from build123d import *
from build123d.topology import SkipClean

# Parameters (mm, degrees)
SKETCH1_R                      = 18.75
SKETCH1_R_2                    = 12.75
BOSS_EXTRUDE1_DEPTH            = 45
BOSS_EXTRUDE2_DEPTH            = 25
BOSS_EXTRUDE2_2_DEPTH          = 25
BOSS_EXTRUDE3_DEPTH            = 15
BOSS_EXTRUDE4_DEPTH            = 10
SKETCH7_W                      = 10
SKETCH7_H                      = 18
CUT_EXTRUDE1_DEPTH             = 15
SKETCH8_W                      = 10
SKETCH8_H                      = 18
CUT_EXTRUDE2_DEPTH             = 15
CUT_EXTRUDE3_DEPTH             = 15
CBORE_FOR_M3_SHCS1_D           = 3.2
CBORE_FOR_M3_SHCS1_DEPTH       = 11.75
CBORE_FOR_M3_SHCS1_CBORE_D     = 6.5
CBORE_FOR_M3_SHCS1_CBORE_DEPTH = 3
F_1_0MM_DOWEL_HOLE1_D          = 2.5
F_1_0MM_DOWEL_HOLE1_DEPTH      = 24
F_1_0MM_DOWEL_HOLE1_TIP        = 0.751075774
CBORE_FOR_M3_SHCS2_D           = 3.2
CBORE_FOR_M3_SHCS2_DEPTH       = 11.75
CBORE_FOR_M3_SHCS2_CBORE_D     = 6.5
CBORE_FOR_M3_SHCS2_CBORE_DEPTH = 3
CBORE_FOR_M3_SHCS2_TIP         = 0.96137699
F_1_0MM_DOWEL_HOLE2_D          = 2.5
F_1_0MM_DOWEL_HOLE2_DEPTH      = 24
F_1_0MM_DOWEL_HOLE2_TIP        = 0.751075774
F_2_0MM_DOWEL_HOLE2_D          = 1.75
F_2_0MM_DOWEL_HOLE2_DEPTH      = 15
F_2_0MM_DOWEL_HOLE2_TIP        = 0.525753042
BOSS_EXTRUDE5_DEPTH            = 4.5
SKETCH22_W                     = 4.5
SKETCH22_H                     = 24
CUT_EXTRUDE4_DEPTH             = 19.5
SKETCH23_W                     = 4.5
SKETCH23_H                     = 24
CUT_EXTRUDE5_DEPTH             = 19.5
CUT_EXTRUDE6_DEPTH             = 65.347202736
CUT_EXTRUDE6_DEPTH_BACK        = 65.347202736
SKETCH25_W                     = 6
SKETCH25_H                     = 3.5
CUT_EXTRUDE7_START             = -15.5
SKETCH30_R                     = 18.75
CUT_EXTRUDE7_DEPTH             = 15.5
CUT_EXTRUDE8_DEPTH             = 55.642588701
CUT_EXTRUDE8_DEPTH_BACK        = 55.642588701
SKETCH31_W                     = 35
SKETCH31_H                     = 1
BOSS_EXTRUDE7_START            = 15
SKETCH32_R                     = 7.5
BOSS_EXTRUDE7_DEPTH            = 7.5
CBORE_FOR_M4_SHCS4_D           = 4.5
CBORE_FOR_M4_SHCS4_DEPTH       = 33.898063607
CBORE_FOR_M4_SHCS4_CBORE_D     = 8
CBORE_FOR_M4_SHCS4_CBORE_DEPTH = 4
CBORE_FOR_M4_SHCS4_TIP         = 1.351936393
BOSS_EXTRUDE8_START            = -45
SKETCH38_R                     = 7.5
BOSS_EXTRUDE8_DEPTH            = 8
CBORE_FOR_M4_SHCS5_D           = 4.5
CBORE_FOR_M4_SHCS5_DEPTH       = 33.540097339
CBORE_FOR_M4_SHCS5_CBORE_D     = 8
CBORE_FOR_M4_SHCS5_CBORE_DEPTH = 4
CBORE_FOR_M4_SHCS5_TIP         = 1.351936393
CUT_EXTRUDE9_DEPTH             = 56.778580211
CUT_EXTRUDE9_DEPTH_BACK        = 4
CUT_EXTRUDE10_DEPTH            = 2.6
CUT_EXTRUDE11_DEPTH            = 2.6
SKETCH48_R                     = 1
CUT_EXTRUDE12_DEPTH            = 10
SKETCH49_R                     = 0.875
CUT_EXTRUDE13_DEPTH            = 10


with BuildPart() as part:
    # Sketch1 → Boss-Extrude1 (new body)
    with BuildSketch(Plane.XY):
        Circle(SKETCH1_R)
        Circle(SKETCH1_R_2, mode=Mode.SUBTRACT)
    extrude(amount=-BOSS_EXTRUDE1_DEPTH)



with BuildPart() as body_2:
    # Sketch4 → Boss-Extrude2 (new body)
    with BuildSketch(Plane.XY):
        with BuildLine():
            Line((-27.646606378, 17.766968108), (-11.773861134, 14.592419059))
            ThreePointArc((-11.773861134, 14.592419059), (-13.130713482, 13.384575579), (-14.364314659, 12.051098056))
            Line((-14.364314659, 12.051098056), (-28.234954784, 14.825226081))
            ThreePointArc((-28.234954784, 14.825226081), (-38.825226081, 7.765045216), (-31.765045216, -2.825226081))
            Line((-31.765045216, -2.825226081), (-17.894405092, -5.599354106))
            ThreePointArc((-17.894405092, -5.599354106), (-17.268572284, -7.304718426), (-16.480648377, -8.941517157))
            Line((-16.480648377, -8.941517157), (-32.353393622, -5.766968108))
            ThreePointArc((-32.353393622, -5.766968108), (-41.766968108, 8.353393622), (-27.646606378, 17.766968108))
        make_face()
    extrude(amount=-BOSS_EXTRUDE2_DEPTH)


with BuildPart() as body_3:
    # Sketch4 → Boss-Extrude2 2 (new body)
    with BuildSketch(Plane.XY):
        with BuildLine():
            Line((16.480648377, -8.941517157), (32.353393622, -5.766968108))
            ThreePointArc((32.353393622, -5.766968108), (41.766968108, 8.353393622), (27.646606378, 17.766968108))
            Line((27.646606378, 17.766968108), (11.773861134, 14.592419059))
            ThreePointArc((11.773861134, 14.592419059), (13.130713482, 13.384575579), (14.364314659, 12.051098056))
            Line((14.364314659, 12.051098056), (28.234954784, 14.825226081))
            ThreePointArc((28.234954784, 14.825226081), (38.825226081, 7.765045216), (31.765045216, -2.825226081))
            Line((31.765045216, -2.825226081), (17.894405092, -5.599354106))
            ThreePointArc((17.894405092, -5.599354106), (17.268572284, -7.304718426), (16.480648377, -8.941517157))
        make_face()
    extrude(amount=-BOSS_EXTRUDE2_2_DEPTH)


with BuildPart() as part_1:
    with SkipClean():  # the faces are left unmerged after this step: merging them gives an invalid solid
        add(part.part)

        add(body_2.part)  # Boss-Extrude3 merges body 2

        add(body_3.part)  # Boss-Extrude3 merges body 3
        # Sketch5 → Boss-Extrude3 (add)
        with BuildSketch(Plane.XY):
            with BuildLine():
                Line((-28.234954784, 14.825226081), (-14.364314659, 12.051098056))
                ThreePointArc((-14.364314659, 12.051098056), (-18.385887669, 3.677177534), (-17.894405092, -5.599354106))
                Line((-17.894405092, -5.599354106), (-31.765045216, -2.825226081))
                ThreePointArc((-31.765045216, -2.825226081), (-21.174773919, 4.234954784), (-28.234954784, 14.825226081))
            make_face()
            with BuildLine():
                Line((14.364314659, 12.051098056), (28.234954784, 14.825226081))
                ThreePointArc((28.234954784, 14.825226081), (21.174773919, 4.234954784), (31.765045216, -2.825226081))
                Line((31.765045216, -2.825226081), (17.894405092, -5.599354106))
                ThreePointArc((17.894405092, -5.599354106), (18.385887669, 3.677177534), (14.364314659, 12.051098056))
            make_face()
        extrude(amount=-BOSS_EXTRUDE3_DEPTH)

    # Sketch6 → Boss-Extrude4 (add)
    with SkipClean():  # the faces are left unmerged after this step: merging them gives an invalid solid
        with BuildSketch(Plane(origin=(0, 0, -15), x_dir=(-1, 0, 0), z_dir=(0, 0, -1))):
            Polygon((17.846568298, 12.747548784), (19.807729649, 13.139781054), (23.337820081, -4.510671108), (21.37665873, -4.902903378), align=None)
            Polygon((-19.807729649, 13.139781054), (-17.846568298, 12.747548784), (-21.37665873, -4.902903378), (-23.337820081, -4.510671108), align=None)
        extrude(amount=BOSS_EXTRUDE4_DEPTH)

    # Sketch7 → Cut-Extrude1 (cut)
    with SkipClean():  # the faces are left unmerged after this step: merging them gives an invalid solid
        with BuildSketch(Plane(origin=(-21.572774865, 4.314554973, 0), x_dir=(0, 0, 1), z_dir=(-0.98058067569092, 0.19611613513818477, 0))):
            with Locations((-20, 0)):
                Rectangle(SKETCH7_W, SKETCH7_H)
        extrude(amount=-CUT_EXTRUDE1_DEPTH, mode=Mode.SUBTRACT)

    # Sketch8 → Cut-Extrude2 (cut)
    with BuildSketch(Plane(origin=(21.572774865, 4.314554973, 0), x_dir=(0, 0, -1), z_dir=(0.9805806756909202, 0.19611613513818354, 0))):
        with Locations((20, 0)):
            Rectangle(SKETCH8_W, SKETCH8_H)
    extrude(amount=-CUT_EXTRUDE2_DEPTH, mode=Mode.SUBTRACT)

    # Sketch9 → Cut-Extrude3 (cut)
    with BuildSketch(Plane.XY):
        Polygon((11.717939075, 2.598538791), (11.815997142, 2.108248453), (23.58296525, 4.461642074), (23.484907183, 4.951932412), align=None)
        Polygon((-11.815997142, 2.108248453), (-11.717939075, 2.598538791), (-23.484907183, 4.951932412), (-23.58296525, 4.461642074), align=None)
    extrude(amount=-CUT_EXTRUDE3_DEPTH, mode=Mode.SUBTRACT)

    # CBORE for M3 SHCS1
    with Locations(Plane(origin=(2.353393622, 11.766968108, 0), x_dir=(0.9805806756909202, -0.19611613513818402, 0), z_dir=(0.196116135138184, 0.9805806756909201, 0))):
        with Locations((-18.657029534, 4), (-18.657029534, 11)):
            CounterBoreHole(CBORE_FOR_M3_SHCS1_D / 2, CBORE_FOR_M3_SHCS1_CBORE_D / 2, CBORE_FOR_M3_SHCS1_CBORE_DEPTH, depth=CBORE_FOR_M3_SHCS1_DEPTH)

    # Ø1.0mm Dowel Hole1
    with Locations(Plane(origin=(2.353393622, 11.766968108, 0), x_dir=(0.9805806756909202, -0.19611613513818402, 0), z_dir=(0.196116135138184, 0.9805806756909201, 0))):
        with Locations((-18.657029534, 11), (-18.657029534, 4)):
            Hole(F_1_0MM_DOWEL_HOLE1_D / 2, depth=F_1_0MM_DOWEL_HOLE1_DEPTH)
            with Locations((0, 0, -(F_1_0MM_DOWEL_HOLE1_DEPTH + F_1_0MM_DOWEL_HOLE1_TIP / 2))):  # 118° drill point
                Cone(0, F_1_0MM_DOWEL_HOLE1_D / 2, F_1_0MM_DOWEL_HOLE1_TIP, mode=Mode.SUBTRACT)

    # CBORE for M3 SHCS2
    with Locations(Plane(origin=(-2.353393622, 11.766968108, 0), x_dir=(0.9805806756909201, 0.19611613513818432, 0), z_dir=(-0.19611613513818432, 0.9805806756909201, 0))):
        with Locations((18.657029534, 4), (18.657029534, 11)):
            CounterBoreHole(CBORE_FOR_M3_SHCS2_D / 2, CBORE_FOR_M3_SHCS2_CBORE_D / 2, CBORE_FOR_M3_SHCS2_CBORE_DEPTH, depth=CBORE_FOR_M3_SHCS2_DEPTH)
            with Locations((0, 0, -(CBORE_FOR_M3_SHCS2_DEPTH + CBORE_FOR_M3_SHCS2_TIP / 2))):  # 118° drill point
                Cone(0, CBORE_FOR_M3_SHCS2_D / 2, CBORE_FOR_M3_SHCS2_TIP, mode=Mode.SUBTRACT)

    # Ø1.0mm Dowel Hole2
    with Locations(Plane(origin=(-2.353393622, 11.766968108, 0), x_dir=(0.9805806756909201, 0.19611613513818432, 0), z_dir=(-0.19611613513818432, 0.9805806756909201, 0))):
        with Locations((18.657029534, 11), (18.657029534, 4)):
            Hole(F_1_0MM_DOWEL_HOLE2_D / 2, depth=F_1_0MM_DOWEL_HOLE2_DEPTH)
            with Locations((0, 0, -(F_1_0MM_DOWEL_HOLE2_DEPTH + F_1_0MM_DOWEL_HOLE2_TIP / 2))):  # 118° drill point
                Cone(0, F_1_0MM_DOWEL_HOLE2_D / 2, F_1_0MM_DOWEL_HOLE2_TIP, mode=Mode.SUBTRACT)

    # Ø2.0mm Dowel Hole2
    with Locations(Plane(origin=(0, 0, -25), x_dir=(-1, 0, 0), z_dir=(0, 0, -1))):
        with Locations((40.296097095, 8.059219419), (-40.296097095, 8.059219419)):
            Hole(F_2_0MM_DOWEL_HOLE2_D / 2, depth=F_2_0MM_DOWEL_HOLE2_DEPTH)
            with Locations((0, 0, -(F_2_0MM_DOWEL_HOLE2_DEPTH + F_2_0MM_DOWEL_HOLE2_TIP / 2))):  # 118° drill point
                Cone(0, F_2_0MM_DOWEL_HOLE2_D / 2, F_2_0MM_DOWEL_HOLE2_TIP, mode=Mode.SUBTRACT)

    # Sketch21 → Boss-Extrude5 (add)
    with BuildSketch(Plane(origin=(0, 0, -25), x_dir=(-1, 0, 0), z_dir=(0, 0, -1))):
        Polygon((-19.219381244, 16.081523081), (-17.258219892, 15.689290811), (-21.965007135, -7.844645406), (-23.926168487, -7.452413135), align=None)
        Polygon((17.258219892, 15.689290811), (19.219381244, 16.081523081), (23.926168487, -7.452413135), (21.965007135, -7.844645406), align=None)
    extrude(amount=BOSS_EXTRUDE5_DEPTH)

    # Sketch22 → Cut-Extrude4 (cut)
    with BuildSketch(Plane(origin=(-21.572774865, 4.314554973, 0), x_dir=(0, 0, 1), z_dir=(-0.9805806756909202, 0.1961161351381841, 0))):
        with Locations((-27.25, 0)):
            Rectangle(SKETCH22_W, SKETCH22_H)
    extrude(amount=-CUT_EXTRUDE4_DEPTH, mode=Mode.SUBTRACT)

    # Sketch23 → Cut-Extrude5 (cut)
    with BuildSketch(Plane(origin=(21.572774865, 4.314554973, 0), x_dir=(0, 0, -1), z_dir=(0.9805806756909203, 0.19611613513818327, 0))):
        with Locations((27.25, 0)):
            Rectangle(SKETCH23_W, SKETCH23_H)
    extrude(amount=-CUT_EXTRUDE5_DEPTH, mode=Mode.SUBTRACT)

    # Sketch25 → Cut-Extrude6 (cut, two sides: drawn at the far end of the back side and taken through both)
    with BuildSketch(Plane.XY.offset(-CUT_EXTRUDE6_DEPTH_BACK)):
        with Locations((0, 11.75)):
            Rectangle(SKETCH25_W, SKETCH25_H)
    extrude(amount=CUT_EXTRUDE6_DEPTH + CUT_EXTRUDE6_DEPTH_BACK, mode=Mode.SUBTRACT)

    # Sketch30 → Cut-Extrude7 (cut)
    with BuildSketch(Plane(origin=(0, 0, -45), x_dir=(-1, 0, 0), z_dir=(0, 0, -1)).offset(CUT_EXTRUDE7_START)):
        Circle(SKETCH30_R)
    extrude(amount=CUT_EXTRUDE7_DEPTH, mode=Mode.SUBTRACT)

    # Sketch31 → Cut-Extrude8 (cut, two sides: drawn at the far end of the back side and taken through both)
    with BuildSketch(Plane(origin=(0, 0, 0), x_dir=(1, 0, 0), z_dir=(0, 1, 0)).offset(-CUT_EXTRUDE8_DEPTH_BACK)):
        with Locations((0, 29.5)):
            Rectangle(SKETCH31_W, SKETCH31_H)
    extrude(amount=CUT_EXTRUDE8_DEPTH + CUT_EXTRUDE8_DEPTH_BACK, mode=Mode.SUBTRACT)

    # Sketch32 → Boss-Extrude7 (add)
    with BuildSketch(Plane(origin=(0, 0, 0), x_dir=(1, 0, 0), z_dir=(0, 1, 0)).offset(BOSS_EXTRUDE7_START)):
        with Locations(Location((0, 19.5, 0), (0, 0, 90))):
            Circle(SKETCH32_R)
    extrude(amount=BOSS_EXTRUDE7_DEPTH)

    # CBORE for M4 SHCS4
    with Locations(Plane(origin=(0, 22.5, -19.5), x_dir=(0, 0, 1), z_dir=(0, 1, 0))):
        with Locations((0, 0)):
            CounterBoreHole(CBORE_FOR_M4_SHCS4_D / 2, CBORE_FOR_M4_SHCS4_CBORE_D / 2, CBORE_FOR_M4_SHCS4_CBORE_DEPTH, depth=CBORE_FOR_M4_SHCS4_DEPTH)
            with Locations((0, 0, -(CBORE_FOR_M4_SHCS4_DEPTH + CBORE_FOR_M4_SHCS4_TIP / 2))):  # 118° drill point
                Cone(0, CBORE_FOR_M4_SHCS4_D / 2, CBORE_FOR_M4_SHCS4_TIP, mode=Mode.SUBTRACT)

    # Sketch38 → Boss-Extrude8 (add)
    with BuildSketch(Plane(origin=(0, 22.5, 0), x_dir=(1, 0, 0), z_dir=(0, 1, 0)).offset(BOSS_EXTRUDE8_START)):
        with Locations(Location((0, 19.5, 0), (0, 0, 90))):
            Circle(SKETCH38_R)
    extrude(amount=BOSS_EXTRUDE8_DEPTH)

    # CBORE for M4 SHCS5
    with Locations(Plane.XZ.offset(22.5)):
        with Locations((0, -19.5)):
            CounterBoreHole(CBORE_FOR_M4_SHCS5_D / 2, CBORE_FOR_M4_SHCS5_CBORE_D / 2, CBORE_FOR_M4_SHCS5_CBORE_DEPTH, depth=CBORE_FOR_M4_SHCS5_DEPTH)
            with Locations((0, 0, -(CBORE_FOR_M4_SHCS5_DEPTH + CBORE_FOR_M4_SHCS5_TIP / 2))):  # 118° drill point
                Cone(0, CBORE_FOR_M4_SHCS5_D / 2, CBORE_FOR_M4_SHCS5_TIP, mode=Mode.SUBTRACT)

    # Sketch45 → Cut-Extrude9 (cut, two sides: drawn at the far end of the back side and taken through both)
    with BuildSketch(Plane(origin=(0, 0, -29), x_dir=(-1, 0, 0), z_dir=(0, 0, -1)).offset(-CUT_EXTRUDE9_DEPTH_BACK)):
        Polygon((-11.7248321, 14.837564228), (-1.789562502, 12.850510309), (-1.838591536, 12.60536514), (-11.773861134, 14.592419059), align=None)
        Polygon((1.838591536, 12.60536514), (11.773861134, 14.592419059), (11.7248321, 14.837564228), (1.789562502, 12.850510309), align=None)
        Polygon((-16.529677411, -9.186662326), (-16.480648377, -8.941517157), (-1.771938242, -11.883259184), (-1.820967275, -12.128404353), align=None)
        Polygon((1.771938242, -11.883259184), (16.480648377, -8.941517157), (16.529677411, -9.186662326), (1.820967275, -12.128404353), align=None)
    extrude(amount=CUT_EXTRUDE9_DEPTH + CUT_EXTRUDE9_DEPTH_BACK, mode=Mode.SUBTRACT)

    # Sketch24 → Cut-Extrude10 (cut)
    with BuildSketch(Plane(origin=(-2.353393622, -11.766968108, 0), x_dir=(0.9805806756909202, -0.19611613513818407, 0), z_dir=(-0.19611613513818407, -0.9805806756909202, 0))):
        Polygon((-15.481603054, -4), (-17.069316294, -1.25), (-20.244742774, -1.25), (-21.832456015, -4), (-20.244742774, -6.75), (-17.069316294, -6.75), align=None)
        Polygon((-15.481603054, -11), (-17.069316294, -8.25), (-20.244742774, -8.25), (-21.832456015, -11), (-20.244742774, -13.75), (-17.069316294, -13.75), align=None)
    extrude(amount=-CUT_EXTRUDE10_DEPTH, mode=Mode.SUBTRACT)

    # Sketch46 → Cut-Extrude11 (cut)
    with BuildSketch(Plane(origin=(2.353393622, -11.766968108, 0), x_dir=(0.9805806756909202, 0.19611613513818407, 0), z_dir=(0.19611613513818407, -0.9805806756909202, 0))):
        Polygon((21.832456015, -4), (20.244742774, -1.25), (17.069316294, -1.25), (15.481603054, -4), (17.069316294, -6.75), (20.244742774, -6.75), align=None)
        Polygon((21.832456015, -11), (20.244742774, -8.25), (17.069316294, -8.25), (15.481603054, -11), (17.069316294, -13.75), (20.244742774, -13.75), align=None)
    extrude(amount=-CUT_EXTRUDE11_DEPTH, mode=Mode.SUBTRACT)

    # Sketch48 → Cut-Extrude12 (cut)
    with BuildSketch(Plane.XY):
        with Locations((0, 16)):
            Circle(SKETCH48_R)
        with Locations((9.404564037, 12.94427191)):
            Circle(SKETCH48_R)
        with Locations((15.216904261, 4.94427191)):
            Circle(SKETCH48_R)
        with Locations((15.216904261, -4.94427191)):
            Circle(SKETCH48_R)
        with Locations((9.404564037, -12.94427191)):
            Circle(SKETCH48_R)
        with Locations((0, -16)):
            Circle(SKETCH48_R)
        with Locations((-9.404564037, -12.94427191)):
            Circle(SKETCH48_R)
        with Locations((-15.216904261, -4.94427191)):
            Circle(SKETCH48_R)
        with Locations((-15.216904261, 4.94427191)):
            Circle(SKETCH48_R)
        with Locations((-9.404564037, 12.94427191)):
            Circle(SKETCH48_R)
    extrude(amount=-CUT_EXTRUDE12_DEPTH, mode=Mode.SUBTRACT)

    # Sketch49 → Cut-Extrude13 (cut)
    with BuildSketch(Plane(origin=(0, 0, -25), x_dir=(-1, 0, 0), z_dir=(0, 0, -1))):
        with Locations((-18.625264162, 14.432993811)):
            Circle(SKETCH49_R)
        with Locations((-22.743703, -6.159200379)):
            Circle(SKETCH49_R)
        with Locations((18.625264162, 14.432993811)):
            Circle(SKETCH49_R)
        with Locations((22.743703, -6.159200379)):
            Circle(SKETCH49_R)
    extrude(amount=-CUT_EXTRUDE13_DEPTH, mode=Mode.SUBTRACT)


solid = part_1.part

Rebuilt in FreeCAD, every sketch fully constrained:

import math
import FreeCAD as App
import Part
import Sketcher

V = App.Vector
Q = App.Units.Quantity


def add_polygon(sketch, points):
    """Adds a closed chain of lines whose ends are joined by coincident constraints."""
    first, n = sketch.GeometryCount, len(points)
    for a, b in zip(points, points[1:] + points[:1]):
        sketch.addGeometry(Part.LineSegment(App.Vector(*a, 0), App.Vector(*b, 0)), False)
    for i in range(n):
        sketch.addConstraint(Sketcher.Constraint("Coincident", first + i, 2, first + (i + 1) % n, 1))

doc = App.newDocument("Part")
body = doc.addObject("PartDesign::Body", "Body")

# Sketch on XY plane
sketch1 = doc.addObject("Sketcher::SketchObject", "Sketch")
body.addObject(sketch1)
sketch1.AttachmentSupport = (doc.XY_Plane, [""])
sketch1.MapMode = "FlatFace"
sketch1.addGeometry([
    Part.Circle(V(0, 0, 0), V(0, 0, 1), 19),
    Part.Circle(V(0, 0, 0), V(0, 0, 1), 13),
], False)
sketch1.addConstraint([
    Sketcher.Constraint("Coincident", 0, 3, -1, 1),
    Sketcher.Constraint("Coincident", 1, 3, -1, 1),
    Sketcher.Constraint("Diameter", 0, Q("37.5 mm")),
    Sketcher.Constraint("Diameter", 1, Q("25.5 mm")),
])
pad1 = doc.addObject("PartDesign::Pad", "Pad")
body.addObject(pad1)
pad1.Profile = sketch1
pad1.Length = 45
pad1.Reversed = True
body2 = doc.addObject("PartDesign::Body", "Body001")

# Sketch on XY plane
sketch2 = doc.addObject("Sketcher::SketchObject", "Sketch001")
body2.addObject(sketch2)
sketch2.AttachmentSupport = (doc.getObject("XY_Plane001"), [""])
sketch2.MapMode = "FlatFace"
sketch2.addGeometry([
    Part.LineSegment(V(-11.8, 14.6, 0), V(-27.6, 17.8, 0)),  # 0
    Part.ArcOfCircle(Part.Circle(V(-30, 6, 0), V(0, 0, 1), 12), math.radians(79), math.radians(259)),  # 1
    Part.LineSegment(V(-32.4, -5.8, 0), V(-16.5, -8.9, 0)),  # 2
    Part.ArcOfCircle(Part.Circle(V(0, 0, 0), V(0, 0, 1), 18.7), math.radians(-162.62), math.radians(-151.52)),  # 3
    Part.LineSegment(V(-17.9, -5.6, 0), V(-31.8, -2.8, 0)),  # 4
    Part.ArcOfCircle(Part.Circle(V(-30, 6, 0), V(0, 0, 1), 9), math.radians(79), math.radians(259)),  # 5
    Part.LineSegment(V(-28.2, 14.8, 0), V(-14.4, 12.1, 0)),  # 6
    Part.ArcOfCircle(Part.Circle(V(0, 0, 0), V(0, 0, 1), 18.8), math.radians(128.9), math.radians(140)),  # 7
], False)
sketch2.addConstraint([
    Sketcher.Constraint("Tangent", 0, 2, 1, 1),
    Sketcher.Constraint("Tangent", 1, 2, 2, 1),
    Sketcher.Constraint("Coincident", 2, 2, 3, 2),
    Sketcher.Constraint("Coincident", 3, 1, 4, 1),
    Sketcher.Constraint("Tangent", 4, 2, 5, 2),
    Sketcher.Constraint("Tangent", 5, 1, 6, 1),
    Sketcher.Constraint("Coincident", 6, 2, 7, 2),
    Sketcher.Constraint("Coincident", 7, 1, 0, 1),
    Sketcher.Constraint("Coincident", 3, 3, -1, 1),
    Sketcher.Constraint("Coincident", 7, 3, -1, 1),
    Sketcher.Constraint("Coincident", 5, 3, 1, 3),
    Sketcher.Constraint("Equal", 3, 7),
    Sketcher.Constraint("Parallel", 0, 2),
    Sketcher.Constraint("Parallel", 2, 4),
    Sketcher.Constraint("Parallel", 4, 6),
    Sketcher.Constraint("Equal", 0, 2),
    Sketcher.Constraint("Radius", 1, Q("12 mm")),
    Sketcher.Constraint("Radius", 5, Q("9 mm")),
    Sketcher.Constraint("Radius", 3, Q("18.75 mm")),
    Sketcher.Constraint("DistanceX", 1, 3, -1, 1, Q("30 mm")),
    Sketcher.Constraint("DistanceY", -1, 1, 1, 3, Q("6 mm")),
])
pad2 = doc.addObject("PartDesign::Pad", "Pad001")
body2.addObject(pad2)
pad2.Profile = sketch2
pad2.Length = 25
pad2.Reversed = True
body3 = doc.addObject("PartDesign::Body", "Body002")

# Sketch on XY plane
sketch3 = doc.addObject("Sketcher::SketchObject", "Sketch002")
body3.addObject(sketch3)
sketch3.AttachmentSupport = (doc.getObject("XY_Plane002"), [""])
sketch3.MapMode = "FlatFace"
sketch3.addGeometry([
    Part.LineSegment(V(16.5, -8.9, 0), V(32.4, -5.8, 0)),  # 0
    Part.ArcOfCircle(Part.Circle(V(30, 6, 0), V(0, 0, 1), 12), math.radians(-79), math.radians(101)),  # 1
    Part.LineSegment(V(27.6, 17.8, 0), V(11.8, 14.6, 0)),  # 2
    Part.ArcOfCircle(Part.Circle(V(0, 0, 0), V(0, 0, 1), 18.8), math.radians(40), math.radians(51.1)),  # 3
    Part.LineSegment(V(14.4, 12.1, 0), V(28.2, 14.8, 0)),  # 4
    Part.ArcOfCircle(Part.Circle(V(30, 6, 0), V(0, 0, 1), 9), math.radians(-79), math.radians(101)),  # 5
    Part.LineSegment(V(31.8, -2.8, 0), V(17.9, -5.6, 0)),  # 6
    Part.ArcOfCircle(Part.Circle(V(0, 0, 0), V(0, 0, 1), 18.7), math.radians(-28.48), math.radians(-17.38)),  # 7
], False)
sketch3.addConstraint([
    Sketcher.Constraint("Tangent", 0, 2, 1, 1),
    Sketcher.Constraint("Tangent", 1, 2, 2, 1),
    Sketcher.Constraint("Coincident", 2, 2, 3, 2),
    Sketcher.Constraint("Coincident", 3, 1, 4, 1),
    Sketcher.Constraint("Tangent", 4, 2, 5, 2),
    Sketcher.Constraint("Tangent", 5, 1, 6, 1),
    Sketcher.Constraint("Coincident", 6, 2, 7, 2),
    Sketcher.Constraint("Coincident", 7, 1, 0, 1),
    Sketcher.Constraint("Coincident", 3, 3, -1, 1),
    Sketcher.Constraint("Coincident", 7, 3, -1, 1),
    Sketcher.Constraint("Coincident", 5, 3, 1, 3),
    Sketcher.Constraint("Equal", 3, 7),
    Sketcher.Constraint("Parallel", 0, 2),
    Sketcher.Constraint("Parallel", 2, 4),
    Sketcher.Constraint("Parallel", 4, 6),
    Sketcher.Constraint("Equal", 0, 2),
    Sketcher.Constraint("Radius", 1, Q("12 mm")),
    Sketcher.Constraint("Radius", 5, Q("9 mm")),
    Sketcher.Constraint("Radius", 3, Q("18.75 mm")),
    Sketcher.Constraint("DistanceX", -1, 1, 1, 3, Q("30 mm")),
    Sketcher.Constraint("DistanceY", -1, 1, 1, 3, Q("6 mm")),
])
pad3 = doc.addObject("PartDesign::Pad", "Pad002")
body3.addObject(pad3)
pad3.Profile = sketch3
pad3.Length = 25
pad3.Reversed = True
doc.recompute()

boolean = doc.addObject("PartDesign::Boolean", "Boolean")
body.addObject(boolean)
boolean.Type = "Fuse"
boolean.addObjects([body2])
doc.recompute()

boolean2 = doc.addObject("PartDesign::Boolean", "Boolean001")
body.addObject(boolean2)
boolean2.Type = "Fuse"
boolean2.addObjects([body3])

# Sketch on XY plane
sketch4 = doc.addObject("Sketcher::SketchObject", "Sketch003")
body.addObject(sketch4)
sketch4.AttachmentSupport = (doc.XY_Plane, [""])
sketch4.MapMode = "FlatFace"
sketch4.addGeometry([
    Part.LineSegment(V(-14, 12, 0), V(-28, 15, 0)),  # 0
    Part.ArcOfCircle(Part.Circle(V(-30, 6, 0), V(0, 0, 1), 9), math.radians(-101), math.radians(79)),  # 1
    Part.LineSegment(V(-32, -3, 0), V(-18, -6, 0)),  # 2
    Part.ArcOfCircle(Part.Circle(V(0, 0, 0), V(0, 0, 1), 19), math.radians(140), math.radians(197)),  # 3
    Part.LineSegment(V(28, 15, 0), V(14, 12, 0)),  # 4
    Part.ArcOfCircle(Part.Circle(V(0, 0, 0), V(0, 0, 1), 19), math.radians(-17), math.radians(40)),  # 5
    Part.LineSegment(V(18, -6, 0), V(32, -3, 0)),  # 6
    Part.ArcOfCircle(Part.Circle(V(30, 6, 0), V(0, 0, 1), 9), math.radians(101), math.radians(281)),  # 7
], False)
sketch4.addConstraint([
    Sketcher.Constraint("Tangent", 0, 2, 1, 2),
    Sketcher.Constraint("Tangent", 1, 1, 2, 1),
    Sketcher.Constraint("Coincident", 2, 2, 3, 2),
    Sketcher.Constraint("Coincident", 3, 1, 0, 1),
    Sketcher.Constraint("Coincident", 4, 2, 5, 2),
    Sketcher.Constraint("Coincident", 5, 1, 6, 1),
    Sketcher.Constraint("Tangent", 6, 2, 7, 2),
    Sketcher.Constraint("Tangent", 7, 1, 4, 1),
    Sketcher.Constraint("Coincident", 3, 3, -1, 1),
    Sketcher.Constraint("Coincident", 5, 3, -1, 1),
    Sketcher.Constraint("Equal", 3, 5),
    Sketcher.Constraint("Equal", 1, 7),
    Sketcher.Constraint("Symmetric", 1, 3, 7, 3, -2),
    Sketcher.Constraint("Parallel", 0, 2),
    Sketcher.Constraint("Parallel", 4, 6),
    Sketcher.Constraint("Horizontal", 3, 1, 4, 2),
    Sketcher.Constraint("Equal", 0, 2),
    Sketcher.Constraint("Radius", 1, Q("9 mm")),
    Sketcher.Constraint("Radius", 3, Q("18.75 mm")),
    Sketcher.Constraint("DistanceX", 1, 3, -1, 1, Q("30 mm")),
    Sketcher.Constraint("DistanceY", -1, 1, 1, 3, Q("6 mm")),
])
pad4 = doc.addObject("PartDesign::Pad", "Pad003")
body.addObject(pad4)
pad4.Profile = sketch4
pad4.Length = 15
pad4.Reversed = True

# Sketch on XY plane
sketch5 = doc.addObject("Sketcher::SketchObject", "Sketch004")
body.addObject(sketch5)
sketch5.AttachmentSupport = (doc.XY_Plane, [""])
sketch5.MapMode = "FlatFace"
sketch5.AttachmentOffset = App.Placement(V(0, 0, -15), App.Rotation())
add_polygon(sketch5, [(-19.8, 13.1), (-17.8, 12.7), (-21.4, -4.9), (-23.3, -4.5)])  # lines 0-3
add_polygon(sketch5, [(17.8, 12.7), (19.8, 13.1), (23.3, -4.5), (21.4, -4.9)])  # lines 4-7
sketch5.addConstraint([
    Sketcher.Constraint("Symmetric", 3, 2, 4, 2, -2),
    Sketcher.Constraint("Symmetric", 2, 2, 5, 2, -2),
    Sketcher.Constraint("Symmetric", 1, 2, 6, 2, -2),
    Sketcher.Constraint("Symmetric", 0, 2, 7, 2, -2),
    Sketcher.Constraint("Perpendicular", 0, 1),
    Sketcher.Constraint("Perpendicular", 1, 2),
    Sketcher.Constraint("Perpendicular", 2, 3),
    Sketcher.Constraint("Distance", 0, Q("2 mm")),
    Sketcher.Constraint("Distance", 1, Q("18 mm")),
    Sketcher.Constraint("DistanceX", 0, 2, -1, 1, Q("17.846568 mm")),
    Sketcher.Constraint("DistanceY", -1, 1, 0, 2, Q("12.747549 mm")),
    Sketcher.Constraint("DistanceX", 1, 2, -1, 1, Q("21.376659 mm")),
])
pad5 = doc.addObject("PartDesign::Pad", "Pad004")
body.addObject(pad5)
pad5.Profile = sketch5
pad5.Length = 10
pad5.Reversed = True

# Sketch on an angled plane
sketch6 = doc.addObject("Sketcher::SketchObject", "Sketch005")
body.addObject(sketch6)
sketch6.Placement = App.Placement(V(-21.572775, 4.314555, 0), App.Rotation(V(0, 0, 1), V(0.196116135, 0.980580676, 0), V(-0.980580676, 0.196116135, 0), "ZXY"))
add_polygon(sketch6, [(-25, 9), (-25, -9), (-15, -9), (-15, 9)])  # lines 0-3
sketch6.addConstraint([
    Sketcher.Constraint("Vertical", 0),
    Sketcher.Constraint("Horizontal", 1),
    Sketcher.Constraint("Vertical", 2),
    Sketcher.Constraint("Horizontal", 3),
    Sketcher.Constraint("DistanceX", 1, 1, 1, 2, Q("10 mm")),
    Sketcher.Constraint("DistanceY", 0, 2, 0, 1, Q("18 mm")),
    Sketcher.Constraint("DistanceX", 0, 2, -1, 1, Q("25 mm")),
    Sketcher.Constraint("DistanceY", 0, 2, -1, 1, Q("9 mm")),
])
pocket1 = doc.addObject("PartDesign::Pocket", "Pocket")
body.addObject(pocket1)
pocket1.Profile = sketch6
pocket1.Length = 15

# Sketch on an angled plane
sketch7 = doc.addObject("Sketcher::SketchObject", "Sketch006")
body.addObject(sketch7)
sketch7.Placement = App.Placement(V(21.572775, 4.314555, 0), App.Rotation(V(0, 0, -1), V(-0.196116135, 0.980580676, 0), V(0.980580676, 0.196116135, 0), "ZXY"))
add_polygon(sketch7, [(15, 9), (15, -9), (25, -9), (25, 9)])  # lines 0-3
sketch7.addConstraint([
    Sketcher.Constraint("Vertical", 0),
    Sketcher.Constraint("Horizontal", 1),
    Sketcher.Constraint("Vertical", 2),
    Sketcher.Constraint("Horizontal", 3),
    Sketcher.Constraint("DistanceX", 1, 1, 1, 2, Q("10 mm")),
    Sketcher.Constraint("DistanceY", 0, 2, 0, 1, Q("18 mm")),
    Sketcher.Constraint("DistanceX", -1, 1, 0, 2, Q("15 mm")),
    Sketcher.Constraint("DistanceY", 0, 2, -1, 1, Q("9 mm")),
])
pocket2 = doc.addObject("PartDesign::Pocket", "Pocket001")
body.addObject(pocket2)
pocket2.Profile = sketch7
pocket2.Length = 15

# Sketch on XY plane
sketch8 = doc.addObject("Sketcher::SketchObject", "Sketch007")
body.addObject(sketch8)
sketch8.AttachmentSupport = (doc.XY_Plane, [""])
sketch8.MapMode = "FlatFace"
add_polygon(sketch8, [(11.717939, 2.598539), (11.815997, 2.108248), (23.582965, 4.461642), (23.484907, 4.951932)])  # lines 0-3
add_polygon(sketch8, [(-11.815997, 2.108248), (-11.717939, 2.598539), (-23.484907, 4.951932), (-23.582965, 4.461642)])  # lines 4-7
sketch8.addConstraint([
    Sketcher.Constraint("Distance", 1, Q("12 mm")),
    Sketcher.Constraint("Distance", 3, Q("12 mm")),
    Sketcher.Constraint("Distance", 5, Q("12 mm")),
    Sketcher.Constraint("Distance", 7, Q("12 mm")),
    Sketcher.Constraint("Distance", 0, Q("0.5 mm")),
    Sketcher.Constraint("Distance", 2, Q("0.5 mm")),
    Sketcher.Constraint("Distance", 4, Q("0.5 mm")),
    Sketcher.Constraint("Distance", 6, Q("0.5 mm")),
    Sketcher.Constraint("DistanceY", -1, 1, 0, 2, Q("2.108248 mm")),
    Sketcher.Constraint("DistanceX", -1, 1, 3, 2, Q("11.717939 mm")),
    Sketcher.Constraint("DistanceY", -1, 1, 3, 2, Q("2.598539 mm")),
    Sketcher.Constraint("DistanceX", 4, 2, -1, 1, Q("11.717939 mm")),
    Sketcher.Constraint("DistanceY", -1, 1, 4, 2, Q("2.598539 mm")),
    Sketcher.Constraint("DistanceY", -1, 1, 7, 2, Q("2.108248 mm")),
    Sketcher.Constraint("DistanceX", 0, 2, 1, 2, Q("11.766968 mm")),
    Sketcher.Constraint("DistanceX", 5, 2, 4, 2, Q("11.766968 mm")),
])
pocket3 = doc.addObject("PartDesign::Pocket", "Pocket002")
body.addObject(pocket3)
pocket3.Profile = sketch8
pocket3.Length = 15

# Sketch on an angled plane
sketch9 = doc.addObject("Sketcher::SketchObject", "Sketch008")
body.addObject(sketch9)
sketch9.Placement = App.Placement(V(2.353394, 11.766968, 0), App.Rotation(V(0.980580676, -0.196116135, 0), V(0, 0, -1.000000001), V(0.196116135, 0.980580676, 0), "ZXY"))
sketch9.addGeometry([
    Part.Circle(V(-18.7, 4, 0), V(0, 0, 1), 1.6),
    Part.Circle(V(-18.7, 11, 0), V(0, 0, 1), 1.6),
], False)
sketch9.addConstraint([
    Sketcher.Constraint("Equal", 0, 1),
    Sketcher.Constraint("Vertical", 0, 3, 1, 3),
    Sketcher.Constraint("Diameter", 0, Q("3.2 mm")),
    Sketcher.Constraint("DistanceY", -1, 1, 0, 3, Q("4 mm")),
    Sketcher.Constraint("DistanceY", -1, 1, 1, 3, Q("11 mm")),
    Sketcher.Constraint("DistanceX", 0, 3, -1, 1, Q("18.65703 mm")),
])
doc.recompute()
hole = doc.addObject("PartDesign::Hole", "Hole")
body.addObject(hole)
hole.Profile = sketch9
hole.ThreadType = "None"
hole.Diameter = 3.2
hole.DepthType = "Dimension"
hole.Depth = 11.75
hole.DrillPoint = "Flat"
hole.HoleCutType = "Counterbore"
hole.HoleCutDiameter = 6.5
hole.HoleCutDepth = 3

# Sketch on an angled plane
sketch10 = doc.addObject("Sketcher::SketchObject", "Sketch009")
body.addObject(sketch10)
sketch10.Placement = App.Placement(V(2.353394, 11.766968, 0), App.Rotation(V(0.980580676, -0.196116135, 0), V(0, 0, -1.000000001), V(0.196116135, 0.980580676, 0), "ZXY"))
sketch10.addGeometry([
    Part.Circle(V(-18.7, 11, 0), V(0, 0, 1), 1.2),
    Part.Circle(V(-18.7, 4, 0), V(0, 0, 1), 1.2),
], False)
sketch10.addConstraint([
    Sketcher.Constraint("Equal", 0, 1),
    Sketcher.Constraint("Vertical", 0, 3, 1, 3),
    Sketcher.Constraint("Diameter", 0, Q("2.5 mm")),
    Sketcher.Constraint("DistanceY", -1, 1, 0, 3, Q("11 mm")),
    Sketcher.Constraint("DistanceY", -1, 1, 1, 3, Q("4 mm")),
    Sketcher.Constraint("DistanceX", 0, 3, -1, 1, Q("18.65703 mm")),
])
doc.recompute()
hole2 = doc.addObject("PartDesign::Hole", "Hole001")
body.addObject(hole2)
hole2.Profile = sketch10
hole2.ThreadType = "None"
hole2.Diameter = 2.5
hole2.DepthType = "Dimension"
hole2.Depth = 24
hole2.DrillPoint = "Angled"
hole2.DrillPointAngle = 118

# Sketch on an angled plane
sketch11 = doc.addObject("Sketcher::SketchObject", "Sketch010")
body.addObject(sketch11)
sketch11.Placement = App.Placement(V(-2.353394, 11.766968, 0), App.Rotation(V(0.980580676, 0.196116135, 0), V(0, 0, -1.000000001), V(-0.196116135, 0.980580676, 0), "ZXY"))
sketch11.addGeometry([
    Part.Circle(V(18.7, 4, 0), V(0, 0, 1), 1.6),
    Part.Circle(V(18.7, 11, 0), V(0, 0, 1), 1.6),
], False)
sketch11.addConstraint([
    Sketcher.Constraint("Equal", 0, 1),
    Sketcher.Constraint("Vertical", 0, 3, 1, 3),
    Sketcher.Constraint("Diameter", 0, Q("3.2 mm")),
    Sketcher.Constraint("DistanceY", -1, 1, 0, 3, Q("4 mm")),
    Sketcher.Constraint("DistanceY", -1, 1, 1, 3, Q("11 mm")),
    Sketcher.Constraint("DistanceX", -1, 1, 0, 3, Q("18.65703 mm")),
])
doc.recompute()
hole3 = doc.addObject("PartDesign::Hole", "Hole002")
body.addObject(hole3)
hole3.Profile = sketch11
hole3.ThreadType = "None"
hole3.Diameter = 3.2
hole3.DepthType = "Dimension"
hole3.Depth = 11.75
hole3.DrillPoint = "Angled"
hole3.DrillPointAngle = 118
hole3.HoleCutType = "Counterbore"
hole3.HoleCutDiameter = 6.5
hole3.HoleCutDepth = 3

# Sketch on an angled plane
sketch12 = doc.addObject("Sketcher::SketchObject", "Sketch011")
body.addObject(sketch12)
sketch12.Placement = App.Placement(V(-2.353394, 11.766968, 0), App.Rotation(V(0.980580676, 0.196116135, 0), V(0, 0, -1.000000001), V(-0.196116135, 0.980580676, 0), "ZXY"))
sketch12.addGeometry([
    Part.Circle(V(18.7, 11, 0), V(0, 0, 1), 1.2),
    Part.Circle(V(18.7, 4, 0), V(0, 0, 1), 1.2),
], False)
sketch12.addConstraint([
    Sketcher.Constraint("Equal", 0, 1),
    Sketcher.Constraint("Vertical", 0, 3, 1, 3),
    Sketcher.Constraint("Diameter", 0, Q("2.5 mm")),
    Sketcher.Constraint("DistanceY", -1, 1, 0, 3, Q("11 mm")),
    Sketcher.Constraint("DistanceY", -1, 1, 1, 3, Q("4 mm")),
    Sketcher.Constraint("DistanceX", -1, 1, 0, 3, Q("18.65703 mm")),
])
doc.recompute()
hole4 = doc.addObject("PartDesign::Hole", "Hole003")
body.addObject(hole4)
hole4.Profile = sketch12
hole4.ThreadType = "None"
hole4.Diameter = 2.5
hole4.DepthType = "Dimension"
hole4.Depth = 24
hole4.DrillPoint = "Angled"
hole4.DrillPointAngle = 118

# Sketch on XY plane
sketch13 = doc.addObject("Sketcher::SketchObject", "Sketch012")
body.addObject(sketch13)
sketch13.AttachmentSupport = (doc.XY_Plane, [""])
sketch13.MapMode = "FlatFace"
sketch13.AttachmentOffset = App.Placement(V(0, 0, -25), App.Rotation())
sketch13.addGeometry([
    Part.Circle(V(-40.3, 8.1, 0), V(0, 0, 1), 0.9),
    Part.Circle(V(40.3, 8.1, 0), V(0, 0, 1), 0.9),
], False)
sketch13.addConstraint([
    Sketcher.Constraint("Equal", 0, 1),
    Sketcher.Constraint("Symmetric", 0, 3, 1, 3, -2),
    Sketcher.Constraint("Diameter", 0, Q("1.75 mm")),
    Sketcher.Constraint("DistanceY", -1, 1, 0, 3, Q("8.059219 mm")),
    Sketcher.Constraint("DistanceX", 0, 3, -1, 1, Q("40.296097 mm")),
])
doc.recompute()
hole5 = doc.addObject("PartDesign::Hole", "Hole004")
body.addObject(hole5)
hole5.Profile = sketch13
hole5.ThreadType = "None"
hole5.Diameter = 1.75
hole5.DepthType = "Dimension"
hole5.Depth = 15
hole5.DrillPoint = "Angled"
hole5.DrillPointAngle = 118
hole5.Reversed = True

# Sketch on XY plane
sketch14 = doc.addObject("Sketcher::SketchObject", "Sketch013")
body.addObject(sketch14)
sketch14.AttachmentSupport = (doc.XY_Plane, [""])
sketch14.MapMode = "FlatFace"
sketch14.AttachmentOffset = App.Placement(V(0, 0, -25), App.Rotation())
add_polygon(sketch14, [(17.25822, 15.689291), (19.219381, 16.081523), (23.926168, -7.452413), (21.965007, -7.844645)])  # lines 0-3
add_polygon(sketch14, [(-19.219381, 16.081523), (-17.25822, 15.689291), (-21.965007, -7.844645), (-23.926168, -7.452413)])  # lines 4-7
sketch14.addConstraint([
    Sketcher.Constraint("Symmetric", 3, 2, 4, 2, -2),
    Sketcher.Constraint("Symmetric", 2, 2, 5, 2, -2),
    Sketcher.Constraint("Symmetric", 1, 2, 6, 2, -2),
    Sketcher.Constraint("Symmetric", 0, 2, 7, 2, -2),
    Sketcher.Constraint("Perpendicular", 0, 1),
    Sketcher.Constraint("Perpendicular", 1, 2),
    Sketcher.Constraint("Perpendicular", 2, 3),
    Sketcher.Constraint("Distance", 0, Q("2 mm")),
    Sketcher.Constraint("Distance", 1, Q("24 mm")),
    Sketcher.Constraint("DistanceX", 4, 2, 0, 2, Q("36.477601 mm")),
    Sketcher.Constraint("DistanceX", -1, 1, 0, 2, Q("19.219381 mm")),
    Sketcher.Constraint("DistanceY", -1, 1, 3, 2, Q("15.689291 mm")),
])
pad6 = doc.addObject("PartDesign::Pad", "Pad005")
body.addObject(pad6)
pad6.Profile = sketch14
pad6.Length = 4.5
pad6.Reversed = True

# Sketch on an angled plane
sketch15 = doc.addObject("Sketcher::SketchObject", "Sketch014")
body.addObject(sketch15)
sketch15.Placement = App.Placement(V(-21.572775, 4.314555, 0), App.Rotation(V(0, 0, 1), V(0.196116135, 0.980580676, 0), V(-0.980580676, 0.196116135, 0), "ZXY"))
add_polygon(sketch15, [(-29.5, 12), (-29.5, -12), (-25, -12), (-25, 12)])  # lines 0-3
sketch15.addConstraint([
    Sketcher.Constraint("Vertical", 0),
    Sketcher.Constraint("Horizontal", 1),
    Sketcher.Constraint("Vertical", 2),
    Sketcher.Constraint("Horizontal", 3),
    Sketcher.Constraint("DistanceY", 0, 2, 0, 1, Q("24 mm")),
    Sketcher.Constraint("DistanceX", 1, 1, 1, 2, Q("4.5 mm")),
    Sketcher.Constraint("DistanceY", 0, 2, -1, 1, Q("12 mm")),
    Sketcher.Constraint("DistanceX", 1, 2, -1, 1, Q("25 mm")),
])
pocket4 = doc.addObject("PartDesign::Pocket", "Pocket003")
body.addObject(pocket4)
pocket4.Profile = sketch15
pocket4.Length = 19.5

# Sketch on an angled plane
sketch16 = doc.addObject("Sketcher::SketchObject", "Sketch015")
body.addObject(sketch16)
sketch16.Placement = App.Placement(V(21.572775, 4.314555, 0), App.Rotation(V(0, 0, -1), V(-0.196116135, 0.980580676, 0), V(0.980580676, 0.196116135, 0), "ZXY"))
add_polygon(sketch16, [(25, 12), (25, -12), (29.5, -12), (29.5, 12)])  # lines 0-3
sketch16.addConstraint([
    Sketcher.Constraint("Vertical", 0),
    Sketcher.Constraint("Horizontal", 1),
    Sketcher.Constraint("Vertical", 2),
    Sketcher.Constraint("Horizontal", 3),
    Sketcher.Constraint("DistanceY", 0, 2, 0, 1, Q("24 mm")),
    Sketcher.Constraint("DistanceX", 1, 1, 1, 2, Q("4.5 mm")),
    Sketcher.Constraint("DistanceX", -1, 1, 0, 2, Q("25 mm")),
    Sketcher.Constraint("DistanceY", 0, 2, -1, 1, Q("12 mm")),
])
pocket5 = doc.addObject("PartDesign::Pocket", "Pocket004")
body.addObject(pocket5)
pocket5.Profile = sketch16
pocket5.Length = 19.5

# Sketch on XY plane
sketch17 = doc.addObject("Sketcher::SketchObject", "Sketch016")
body.addObject(sketch17)
sketch17.AttachmentSupport = (doc.XY_Plane, [""])
sketch17.MapMode = "FlatFace"
add_polygon(sketch17, [(-3, 13.5), (-3, 10), (3, 10), (3, 13.5)])  # lines 0-3
sketch17.addConstraint([
    Sketcher.Constraint("Vertical", 0),
    Sketcher.Constraint("Horizontal", 1),
    Sketcher.Constraint("Vertical", 2),
    Sketcher.Constraint("Horizontal", 3),
    Sketcher.Constraint("DistanceX", 1, 1, 1, 2, Q("6 mm")),
    Sketcher.Constraint("DistanceY", 0, 2, 0, 1, Q("3.5 mm")),
    Sketcher.Constraint("DistanceX", 0, 2, -1, 1, Q("3 mm")),
    Sketcher.Constraint("DistanceY", -1, 1, 0, 2, Q("10 mm")),
])
pocket6 = doc.addObject("PartDesign::Pocket", "Pocket005")
body.addObject(pocket6)
pocket6.Profile = sketch17
pocket6.Type = "ThroughAll"
pocket6.Midplane = True

# Sketch on XY plane
sketch18 = doc.addObject("Sketcher::SketchObject", "Sketch017")
body.addObject(sketch18)
sketch18.AttachmentSupport = (doc.XY_Plane, [""])
sketch18.MapMode = "FlatFace"
sketch18.AttachmentOffset = App.Placement(V(0, 0, -29.5), App.Rotation())
sketch18.addGeometry(Part.Circle(V(0, 0, 0), V(0, 0, 1), 19), False)
sketch18.addConstraint([
    Sketcher.Constraint("Coincident", 0, 3, -1, 1),
    Sketcher.Constraint("Diameter", 0, Q("37.5 mm")),
])
pocket7 = doc.addObject("PartDesign::Pocket", "Pocket006")
body.addObject(pocket7)
pocket7.Profile = sketch18
pocket7.Length = 15.5

# Sketch on XZ plane
sketch19 = doc.addObject("Sketcher::SketchObject", "Sketch018")
body.addObject(sketch19)
sketch19.AttachmentSupport = (doc.XZ_Plane, [""])
sketch19.MapMode = "FlatFace"
add_polygon(sketch19, [(-17.5, -30), (-17.5, -29), (17.5, -29), (17.5, -30)])  # lines 0-3
sketch19.addConstraint([
    Sketcher.Constraint("Vertical", 0),
    Sketcher.Constraint("Horizontal", 1),
    Sketcher.Constraint("Vertical", 2),
    Sketcher.Constraint("Horizontal", 3),
    Sketcher.Constraint("DistanceX", 1, 1, 1, 2, Q("35 mm")),
    Sketcher.Constraint("DistanceY", 0, 1, 0, 2, Q("1 mm")),
    Sketcher.Constraint("DistanceY", 0, 2, -1, 1, Q("29 mm")),
    Sketcher.Constraint("DistanceX", 0, 2, -1, 1, Q("17.5 mm")),
])
pocket8 = doc.addObject("PartDesign::Pocket", "Pocket007")
body.addObject(pocket8)
pocket8.Profile = sketch19
pocket8.Type = "ThroughAll"
pocket8.Midplane = True

# Sketch on XZ plane
sketch20 = doc.addObject("Sketcher::SketchObject", "Sketch019")
body.addObject(sketch20)
sketch20.AttachmentSupport = (doc.XZ_Plane, [""])
sketch20.MapMode = "FlatFace"
sketch20.AttachmentOffset = App.Placement(V(0, 0, -15), App.Rotation())
sketch20.addGeometry(Part.Circle(V(0, -20, 0), V(0, 0, 1), 8), False)
sketch20.addConstraint([
    Sketcher.Constraint("PointOnObject", 0, 3, -2),
    Sketcher.Constraint("Diameter", 0, Q("15 mm")),
    Sketcher.Constraint("DistanceY", 0, 3, -1, 1, Q("19.5 mm")),
])
pad7 = doc.addObject("PartDesign::Pad", "Pad006")
body.addObject(pad7)
pad7.Profile = sketch20
pad7.Length = 7.5
pad7.Reversed = True

# Sketch on XZ plane
sketch21 = doc.addObject("Sketcher::SketchObject", "Sketch020")
body.addObject(sketch21)
sketch21.AttachmentSupport = (doc.XZ_Plane, [""])
sketch21.MapMode = "FlatFace"
sketch21.AttachmentOffset = App.Placement(V(0, 0, -22.5), App.Rotation())
sketch21.addGeometry(Part.Circle(V(0, -19.5, 0), V(0, 0, 1), 2.2), False)
sketch21.addConstraint([
    Sketcher.Constraint("PointOnObject", 0, 3, -2),
    Sketcher.Constraint("Diameter", 0, Q("4.5 mm")),
    Sketcher.Constraint("DistanceY", 0, 3, -1, 1, Q("19.5 mm")),
])
doc.recompute()
hole6 = doc.addObject("PartDesign::Hole", "Hole005")
body.addObject(hole6)
hole6.Profile = sketch21
hole6.ThreadType = "None"
hole6.Diameter = 4.5
hole6.DepthType = "Dimension"
hole6.Depth = 33.898064
hole6.DrillPoint = "Angled"
hole6.DrillPointAngle = 118
hole6.HoleCutType = "Counterbore"
hole6.HoleCutDiameter = 8
hole6.HoleCutDepth = 4
hole6.Reversed = True

# Sketch on XZ plane
sketch22 = doc.addObject("Sketcher::SketchObject", "Sketch021")
body.addObject(sketch22)
sketch22.AttachmentSupport = (doc.XZ_Plane, [""])
sketch22.MapMode = "FlatFace"
sketch22.AttachmentOffset = App.Placement(V(0, 0, 22.5), App.Rotation())
sketch22.addGeometry(Part.Circle(V(0, -20, 0), V(0, 0, 1), 8), False)
sketch22.addConstraint([
    Sketcher.Constraint("PointOnObject", 0, 3, -2),
    Sketcher.Constraint("Diameter", 0, Q("15 mm")),
    Sketcher.Constraint("DistanceY", 0, 3, -1, 1, Q("19.5 mm")),
])
pad8 = doc.addObject("PartDesign::Pad", "Pad007")
body.addObject(pad8)
pad8.Profile = sketch22
pad8.Length = 8
pad8.Reversed = True

# Sketch on XZ plane
sketch23 = doc.addObject("Sketcher::SketchObject", "Sketch022")
body.addObject(sketch23)
sketch23.AttachmentSupport = (doc.XZ_Plane, [""])
sketch23.MapMode = "FlatFace"
sketch23.AttachmentOffset = App.Placement(V(0, 0, 22.5), App.Rotation())
sketch23.addGeometry(Part.Circle(V(0, -19.5, 0), V(0, 0, 1), 2.2), False)
sketch23.addConstraint([
    Sketcher.Constraint("PointOnObject", 0, 3, -2),
    Sketcher.Constraint("Diameter", 0, Q("4.5 mm")),
    Sketcher.Constraint("DistanceY", 0, 3, -1, 1, Q("19.5 mm")),
])
doc.recompute()
hole7 = doc.addObject("PartDesign::Hole", "Hole006")
body.addObject(hole7)
hole7.Profile = sketch23
hole7.ThreadType = "None"
hole7.Diameter = 4.5
hole7.DepthType = "Dimension"
hole7.Depth = 33.540097
hole7.DrillPoint = "Angled"
hole7.DrillPointAngle = 118
hole7.HoleCutType = "Counterbore"
hole7.HoleCutDiameter = 8
hole7.HoleCutDepth = 4

# Sketch on XY plane
sketch24 = doc.addObject("Sketcher::SketchObject", "Sketch023")
body.addObject(sketch24)
sketch24.AttachmentSupport = (doc.XY_Plane, [""])
sketch24.MapMode = "FlatFace"
sketch24.AttachmentOffset = App.Placement(V(0, 0, -29), App.Rotation())
add_polygon(sketch24, [(1.79, 12.85), (11.72, 14.84), (11.77, 14.59), (1.84, 12.61)])  # lines 0-3
add_polygon(sketch24, [(-1.84, 12.61), (-11.77, 14.59), (-11.72, 14.84), (-1.79, 12.85)])  # lines 4-7
add_polygon(sketch24, [(16.48, -8.94), (16.53, -9.19), (1.82, -12.13), (1.77, -11.88)])  # lines 8-11
add_polygon(sketch24, [(-16.48, -8.94), (-1.77, -11.88), (-1.82, -12.13), (-16.53, -9.19)])  # lines 12-15
sketch24.addConstraint([
    Sketcher.Constraint("Symmetric", 1, 2, 4, 2, -2),
    Sketcher.Constraint("Symmetric", 0, 2, 5, 2, -2),
    Sketcher.Constraint("Symmetric", 3, 2, 6, 2, -2),
    Sketcher.Constraint("Symmetric", 2, 2, 7, 2, -2),
    Sketcher.Constraint("Symmetric", 10, 2, 12, 2, -2),
    Sketcher.Constraint("Symmetric", 9, 2, 13, 2, -2),
    Sketcher.Constraint("Symmetric", 8, 2, 14, 2, -2),
    Sketcher.Constraint("Symmetric", 11, 2, 15, 2, -2),
    Sketcher.Constraint("Perpendicular", 0, 1),
    Sketcher.Constraint("Perpendicular", 1, 2),
    Sketcher.Constraint("Perpendicular", 2, 3),
    Sketcher.Constraint("Parallel", 3, 8),
    Sketcher.Constraint("Perpendicular", 8, 9),
    Sketcher.Constraint("Perpendicular", 9, 10),
    Sketcher.Constraint("Perpendicular", 10, 11),
    Sketcher.Constraint("Equal", 7, 8),
    Sketcher.Constraint("Distance", 9, Q("15 mm")),
    Sketcher.Constraint("Distance", 1, Q("0.25 mm")),
    Sketcher.Constraint("DistanceY", 2, 2, 0, 2, Q("2.232199 mm")),
    Sketcher.Constraint("DistanceX", 3, 2, 1, 2, Q("9.984299 mm")),
    Sketcher.Constraint("DistanceX", -1, 1, 1, 2, Q("11.773861 mm")),
    Sketcher.Constraint("DistanceY", -1, 1, 1, 2, Q("14.592419 mm")),
    Sketcher.Constraint("DistanceX", -1, 1, 10, 2, Q("1.771938 mm")),
    Sketcher.Constraint("DistanceY", 10, 2, -1, 1, Q("11.883259 mm")),
])
pocket9 = doc.addObject("PartDesign::Pocket", "Pocket008")
body.addObject(pocket9)
pocket9.Profile = sketch24
pocket9.Type = "TwoLengths"
pocket9.Length = 56.77858
pocket9.Length2 = 4

# Sketch on an angled plane
sketch25 = doc.addObject("Sketcher::SketchObject", "Sketch024")
body.addObject(sketch25)
sketch25.Placement = App.Placement(V(-2.353394, -11.766968, 0), App.Rotation(V(0.980580676, -0.196116135, 0), V(0, 0, 1.000000001), V(-0.196116135, -0.980580676, 0), "ZXY"))
add_polygon(sketch25, [(-15.5, -4), (-17.1, -1.3), (-20.2, -1.3), (-21.8, -4), (-20.2, -6.8), (-17.1, -6.8)])  # lines 0-5
add_polygon(sketch25, [(-15.5, -11), (-17.1, -8.3), (-20.2, -8.3), (-21.8, -11), (-20.2, -13.8), (-17.1, -13.8)])  # lines 6-11
sketch25.addConstraint([
    Sketcher.Constraint("Horizontal", 1),
    Sketcher.Constraint("Horizontal", 4),
    Sketcher.Constraint("Horizontal", 7),
    Sketcher.Constraint("Horizontal", 10),
    Sketcher.Constraint("Parallel", 0, 3),
    Sketcher.Constraint("Parallel", 2, 5),
    Sketcher.Constraint("Parallel", 3, 6),
    Sketcher.Constraint("Parallel", 5, 8),
    Sketcher.Constraint("Parallel", 6, 9),
    Sketcher.Constraint("Parallel", 8, 11),
    Sketcher.Constraint("Horizontal", 2, 2, 5, 2),
    Sketcher.Constraint("Horizontal", 8, 2, 11, 2),
    Sketcher.Constraint("Vertical", 1, 2, 3, 2),
    Sketcher.Constraint("Vertical", 0, 2, 4, 2),
    Sketcher.Constraint("Vertical", 4, 2, 6, 2),
    Sketcher.Constraint("Vertical", 3, 2, 7, 2),
    Sketcher.Constraint("Vertical", 2, 2, 8, 2),
    Sketcher.Constraint("Vertical", 7, 2, 9, 2),
    Sketcher.Constraint("Angle", 0, Q("120 deg")),
    Sketcher.Constraint("DistanceY", 2, 2, -1, 1, Q("4 mm")),
    Sketcher.Constraint("DistanceY", 8, 2, -1, 1, Q("11 mm")),
    Sketcher.Constraint("DistanceY", 3, 2, 1, 2, Q("5.5 mm")),
    Sketcher.Constraint("DistanceX", 1, 2, 1, 1, Q("3.175426 mm")),
    Sketcher.Constraint("DistanceX", 0, 2, -1, 1, Q("17.069316 mm")),
])
pocket10 = doc.addObject("PartDesign::Pocket", "Pocket009")
body.addObject(pocket10)
pocket10.Profile = sketch25
pocket10.Length = 2.6

# Sketch on an angled plane
sketch26 = doc.addObject("Sketcher::SketchObject", "Sketch025")
body.addObject(sketch26)
sketch26.Placement = App.Placement(V(2.353394, -11.766968, 0), App.Rotation(V(0.980580676, 0.196116135, 0), V(0, 0, 1.000000001), V(0.196116135, -0.980580676, 0), "ZXY"))
add_polygon(sketch26, [(21.8, -4), (20.2, -1.3), (17.1, -1.3), (15.5, -4), (17.1, -6.8), (20.2, -6.8)])  # lines 0-5
add_polygon(sketch26, [(21.8, -11), (20.2, -8.3), (17.1, -8.3), (15.5, -11), (17.1, -13.8), (20.2, -13.8)])  # lines 6-11
sketch26.addConstraint([
    Sketcher.Constraint("Horizontal", 1),
    Sketcher.Constraint("Horizontal", 4),
    Sketcher.Constraint("Horizontal", 7),
    Sketcher.Constraint("Horizontal", 10),
    Sketcher.Constraint("Parallel", 0, 3),
    Sketcher.Constraint("Parallel", 2, 5),
    Sketcher.Constraint("Parallel", 3, 6),
    Sketcher.Constraint("Parallel", 5, 8),
    Sketcher.Constraint("Parallel", 6, 9),
    Sketcher.Constraint("Parallel", 8, 11),
    Sketcher.Constraint("Horizontal", 2, 2, 5, 2),
    Sketcher.Constraint("Horizontal", 8, 2, 11, 2),
    Sketcher.Constraint("Vertical", 1, 2, 3, 2),
    Sketcher.Constraint("Vertical", 0, 2, 4, 2),
    Sketcher.Constraint("Vertical", 4, 2, 6, 2),
    Sketcher.Constraint("Vertical", 3, 2, 7, 2),
    Sketcher.Constraint("Vertical", 2, 2, 8, 2),
    Sketcher.Constraint("Vertical", 7, 2, 9, 2),
    Sketcher.Constraint("Angle", 0, Q("120 deg")),
    Sketcher.Constraint("DistanceY", 2, 2, -1, 1, Q("4 mm")),
    Sketcher.Constraint("DistanceY", 8, 2, -1, 1, Q("11 mm")),
    Sketcher.Constraint("DistanceY", 3, 2, 1, 2, Q("5.5 mm")),
    Sketcher.Constraint("DistanceX", 1, 2, 1, 1, Q("3.175426 mm")),
    Sketcher.Constraint("DistanceX", -1, 1, 0, 2, Q("20.244743 mm")),
])
pocket11 = doc.addObject("PartDesign::Pocket", "Pocket010")
body.addObject(pocket11)
pocket11.Profile = sketch26
pocket11.Length = 2.6

# Sketch on XY plane
sketch27 = doc.addObject("Sketcher::SketchObject", "Sketch026")
body.addObject(sketch27)
sketch27.AttachmentSupport = (doc.XY_Plane, [""])
sketch27.MapMode = "FlatFace"
sketch27.addGeometry([
    Part.Circle(V(0, 16, 0), V(0, 0, 1), 1),  # 0
    Part.Circle(V(9.4, 12.9, 0), V(0, 0, 1), 1),  # 1
    Part.Circle(V(15.2, 4.9, 0), V(0, 0, 1), 1),  # 2
    Part.Circle(V(15.2, -4.9, 0), V(0, 0, 1), 1),  # 3
    Part.Circle(V(9.4, -12.9, 0), V(0, 0, 1), 1),  # 4
    Part.Circle(V(0, -16, 0), V(0, 0, 1), 1),  # 5
    Part.Circle(V(-9.4, -12.9, 0), V(0, 0, 1), 1),  # 6
    Part.Circle(V(-15.2, -4.9, 0), V(0, 0, 1), 1),  # 7
    Part.Circle(V(-15.2, 4.9, 0), V(0, 0, 1), 1),  # 8
    Part.Circle(V(-9.4, 12.9, 0), V(0, 0, 1), 1),  # 9
], False)
sketch27.addConstraint([
    Sketcher.Constraint("Equal", 0, 1),
    Sketcher.Constraint("Equal", 1, 2),
    Sketcher.Constraint("Equal", 2, 3),
    Sketcher.Constraint("Equal", 3, 4),
    Sketcher.Constraint("Equal", 4, 5),
    Sketcher.Constraint("Equal", 5, 6),
    Sketcher.Constraint("Equal", 6, 7),
    Sketcher.Constraint("Equal", 7, 8),
    Sketcher.Constraint("Equal", 8, 9),
    Sketcher.Constraint("Symmetric", 0, 3, 5, 3, -1, 1),
    Sketcher.Constraint("Symmetric", 1, 3, 6, 3, -1, 1),
    Sketcher.Constraint("Symmetric", 2, 3, 7, 3, -1, 1),
    Sketcher.Constraint("Symmetric", 3, 3, 8, 3, -1, 1),
    Sketcher.Constraint("Symmetric", 4, 3, 9, 3, -1, 1),
    Sketcher.Constraint("Symmetric", 4, 3, 6, 3, -2),
    Sketcher.Constraint("Symmetric", 3, 3, 7, 3, -2),
    Sketcher.Constraint("PointOnObject", 0, 3, -2),
    Sketcher.Constraint("Diameter", 0, Q("2 mm")),
    Sketcher.Constraint("DistanceY", -1, 1, 0, 3, Q("16 mm")),
    Sketcher.Constraint("DistanceY", 2, 3, 1, 3, Q("8 mm")),
    Sketcher.Constraint("DistanceY", -1, 1, 1, 3, Q("12.944272 mm")),
    Sketcher.Constraint("DistanceX", 1, 3, 2, 3, Q("5.81234 mm")),
    Sketcher.Constraint("DistanceX", 6, 3, 4, 3, Q("18.809128 mm")),
])
pocket12 = doc.addObject("PartDesign::Pocket", "Pocket011")
body.addObject(pocket12)
pocket12.Profile = sketch27
pocket12.Length = 10

# Sketch on XY plane
sketch28 = doc.addObject("Sketcher::SketchObject", "Sketch027")
body.addObject(sketch28)
sketch28.AttachmentSupport = (doc.XY_Plane, [""])
sketch28.MapMode = "FlatFace"
sketch28.AttachmentOffset = App.Placement(V(0, 0, -25), App.Rotation())
sketch28.addGeometry([
    Part.Circle(V(18.6, 14.4, 0), V(0, 0, 1), 0.9),
    Part.Circle(V(22.7, -6.2, 0), V(0, 0, 1), 0.9),
    Part.Circle(V(-18.6, 14.4, 0), V(0, 0, 1), 0.9),
    Part.Circle(V(-22.7, -6.2, 0), V(0, 0, 1), 0.9),
], False)
sketch28.addConstraint([
    Sketcher.Constraint("Equal", 0, 1),
    Sketcher.Constraint("Equal", 1, 2),
    Sketcher.Constraint("Equal", 2, 3),
    Sketcher.Constraint("Symmetric", 0, 3, 2, 3, -2),
    Sketcher.Constraint("Symmetric", 1, 3, 3, 3, -2),
    Sketcher.Constraint("Diameter", 0, Q("1.75 mm")),
    Sketcher.Constraint("DistanceY", 1, 3, -1, 1, Q("6.1592 mm")),
    Sketcher.Constraint("DistanceX", 0, 3, 1, 3, Q("4.118439 mm")),
    Sketcher.Constraint("DistanceX", 2, 3, 0, 3, Q("37.250528 mm")),
    Sketcher.Constraint("DistanceY", -1, 1, 0, 3, Q("14.432994 mm")),
])
pocket13 = doc.addObject("PartDesign::Pocket", "Pocket012")
body.addObject(pocket13)
pocket13.Profile = sketch28
pocket13.Length = 10
pocket13.Reversed = True

doc.recompute()
